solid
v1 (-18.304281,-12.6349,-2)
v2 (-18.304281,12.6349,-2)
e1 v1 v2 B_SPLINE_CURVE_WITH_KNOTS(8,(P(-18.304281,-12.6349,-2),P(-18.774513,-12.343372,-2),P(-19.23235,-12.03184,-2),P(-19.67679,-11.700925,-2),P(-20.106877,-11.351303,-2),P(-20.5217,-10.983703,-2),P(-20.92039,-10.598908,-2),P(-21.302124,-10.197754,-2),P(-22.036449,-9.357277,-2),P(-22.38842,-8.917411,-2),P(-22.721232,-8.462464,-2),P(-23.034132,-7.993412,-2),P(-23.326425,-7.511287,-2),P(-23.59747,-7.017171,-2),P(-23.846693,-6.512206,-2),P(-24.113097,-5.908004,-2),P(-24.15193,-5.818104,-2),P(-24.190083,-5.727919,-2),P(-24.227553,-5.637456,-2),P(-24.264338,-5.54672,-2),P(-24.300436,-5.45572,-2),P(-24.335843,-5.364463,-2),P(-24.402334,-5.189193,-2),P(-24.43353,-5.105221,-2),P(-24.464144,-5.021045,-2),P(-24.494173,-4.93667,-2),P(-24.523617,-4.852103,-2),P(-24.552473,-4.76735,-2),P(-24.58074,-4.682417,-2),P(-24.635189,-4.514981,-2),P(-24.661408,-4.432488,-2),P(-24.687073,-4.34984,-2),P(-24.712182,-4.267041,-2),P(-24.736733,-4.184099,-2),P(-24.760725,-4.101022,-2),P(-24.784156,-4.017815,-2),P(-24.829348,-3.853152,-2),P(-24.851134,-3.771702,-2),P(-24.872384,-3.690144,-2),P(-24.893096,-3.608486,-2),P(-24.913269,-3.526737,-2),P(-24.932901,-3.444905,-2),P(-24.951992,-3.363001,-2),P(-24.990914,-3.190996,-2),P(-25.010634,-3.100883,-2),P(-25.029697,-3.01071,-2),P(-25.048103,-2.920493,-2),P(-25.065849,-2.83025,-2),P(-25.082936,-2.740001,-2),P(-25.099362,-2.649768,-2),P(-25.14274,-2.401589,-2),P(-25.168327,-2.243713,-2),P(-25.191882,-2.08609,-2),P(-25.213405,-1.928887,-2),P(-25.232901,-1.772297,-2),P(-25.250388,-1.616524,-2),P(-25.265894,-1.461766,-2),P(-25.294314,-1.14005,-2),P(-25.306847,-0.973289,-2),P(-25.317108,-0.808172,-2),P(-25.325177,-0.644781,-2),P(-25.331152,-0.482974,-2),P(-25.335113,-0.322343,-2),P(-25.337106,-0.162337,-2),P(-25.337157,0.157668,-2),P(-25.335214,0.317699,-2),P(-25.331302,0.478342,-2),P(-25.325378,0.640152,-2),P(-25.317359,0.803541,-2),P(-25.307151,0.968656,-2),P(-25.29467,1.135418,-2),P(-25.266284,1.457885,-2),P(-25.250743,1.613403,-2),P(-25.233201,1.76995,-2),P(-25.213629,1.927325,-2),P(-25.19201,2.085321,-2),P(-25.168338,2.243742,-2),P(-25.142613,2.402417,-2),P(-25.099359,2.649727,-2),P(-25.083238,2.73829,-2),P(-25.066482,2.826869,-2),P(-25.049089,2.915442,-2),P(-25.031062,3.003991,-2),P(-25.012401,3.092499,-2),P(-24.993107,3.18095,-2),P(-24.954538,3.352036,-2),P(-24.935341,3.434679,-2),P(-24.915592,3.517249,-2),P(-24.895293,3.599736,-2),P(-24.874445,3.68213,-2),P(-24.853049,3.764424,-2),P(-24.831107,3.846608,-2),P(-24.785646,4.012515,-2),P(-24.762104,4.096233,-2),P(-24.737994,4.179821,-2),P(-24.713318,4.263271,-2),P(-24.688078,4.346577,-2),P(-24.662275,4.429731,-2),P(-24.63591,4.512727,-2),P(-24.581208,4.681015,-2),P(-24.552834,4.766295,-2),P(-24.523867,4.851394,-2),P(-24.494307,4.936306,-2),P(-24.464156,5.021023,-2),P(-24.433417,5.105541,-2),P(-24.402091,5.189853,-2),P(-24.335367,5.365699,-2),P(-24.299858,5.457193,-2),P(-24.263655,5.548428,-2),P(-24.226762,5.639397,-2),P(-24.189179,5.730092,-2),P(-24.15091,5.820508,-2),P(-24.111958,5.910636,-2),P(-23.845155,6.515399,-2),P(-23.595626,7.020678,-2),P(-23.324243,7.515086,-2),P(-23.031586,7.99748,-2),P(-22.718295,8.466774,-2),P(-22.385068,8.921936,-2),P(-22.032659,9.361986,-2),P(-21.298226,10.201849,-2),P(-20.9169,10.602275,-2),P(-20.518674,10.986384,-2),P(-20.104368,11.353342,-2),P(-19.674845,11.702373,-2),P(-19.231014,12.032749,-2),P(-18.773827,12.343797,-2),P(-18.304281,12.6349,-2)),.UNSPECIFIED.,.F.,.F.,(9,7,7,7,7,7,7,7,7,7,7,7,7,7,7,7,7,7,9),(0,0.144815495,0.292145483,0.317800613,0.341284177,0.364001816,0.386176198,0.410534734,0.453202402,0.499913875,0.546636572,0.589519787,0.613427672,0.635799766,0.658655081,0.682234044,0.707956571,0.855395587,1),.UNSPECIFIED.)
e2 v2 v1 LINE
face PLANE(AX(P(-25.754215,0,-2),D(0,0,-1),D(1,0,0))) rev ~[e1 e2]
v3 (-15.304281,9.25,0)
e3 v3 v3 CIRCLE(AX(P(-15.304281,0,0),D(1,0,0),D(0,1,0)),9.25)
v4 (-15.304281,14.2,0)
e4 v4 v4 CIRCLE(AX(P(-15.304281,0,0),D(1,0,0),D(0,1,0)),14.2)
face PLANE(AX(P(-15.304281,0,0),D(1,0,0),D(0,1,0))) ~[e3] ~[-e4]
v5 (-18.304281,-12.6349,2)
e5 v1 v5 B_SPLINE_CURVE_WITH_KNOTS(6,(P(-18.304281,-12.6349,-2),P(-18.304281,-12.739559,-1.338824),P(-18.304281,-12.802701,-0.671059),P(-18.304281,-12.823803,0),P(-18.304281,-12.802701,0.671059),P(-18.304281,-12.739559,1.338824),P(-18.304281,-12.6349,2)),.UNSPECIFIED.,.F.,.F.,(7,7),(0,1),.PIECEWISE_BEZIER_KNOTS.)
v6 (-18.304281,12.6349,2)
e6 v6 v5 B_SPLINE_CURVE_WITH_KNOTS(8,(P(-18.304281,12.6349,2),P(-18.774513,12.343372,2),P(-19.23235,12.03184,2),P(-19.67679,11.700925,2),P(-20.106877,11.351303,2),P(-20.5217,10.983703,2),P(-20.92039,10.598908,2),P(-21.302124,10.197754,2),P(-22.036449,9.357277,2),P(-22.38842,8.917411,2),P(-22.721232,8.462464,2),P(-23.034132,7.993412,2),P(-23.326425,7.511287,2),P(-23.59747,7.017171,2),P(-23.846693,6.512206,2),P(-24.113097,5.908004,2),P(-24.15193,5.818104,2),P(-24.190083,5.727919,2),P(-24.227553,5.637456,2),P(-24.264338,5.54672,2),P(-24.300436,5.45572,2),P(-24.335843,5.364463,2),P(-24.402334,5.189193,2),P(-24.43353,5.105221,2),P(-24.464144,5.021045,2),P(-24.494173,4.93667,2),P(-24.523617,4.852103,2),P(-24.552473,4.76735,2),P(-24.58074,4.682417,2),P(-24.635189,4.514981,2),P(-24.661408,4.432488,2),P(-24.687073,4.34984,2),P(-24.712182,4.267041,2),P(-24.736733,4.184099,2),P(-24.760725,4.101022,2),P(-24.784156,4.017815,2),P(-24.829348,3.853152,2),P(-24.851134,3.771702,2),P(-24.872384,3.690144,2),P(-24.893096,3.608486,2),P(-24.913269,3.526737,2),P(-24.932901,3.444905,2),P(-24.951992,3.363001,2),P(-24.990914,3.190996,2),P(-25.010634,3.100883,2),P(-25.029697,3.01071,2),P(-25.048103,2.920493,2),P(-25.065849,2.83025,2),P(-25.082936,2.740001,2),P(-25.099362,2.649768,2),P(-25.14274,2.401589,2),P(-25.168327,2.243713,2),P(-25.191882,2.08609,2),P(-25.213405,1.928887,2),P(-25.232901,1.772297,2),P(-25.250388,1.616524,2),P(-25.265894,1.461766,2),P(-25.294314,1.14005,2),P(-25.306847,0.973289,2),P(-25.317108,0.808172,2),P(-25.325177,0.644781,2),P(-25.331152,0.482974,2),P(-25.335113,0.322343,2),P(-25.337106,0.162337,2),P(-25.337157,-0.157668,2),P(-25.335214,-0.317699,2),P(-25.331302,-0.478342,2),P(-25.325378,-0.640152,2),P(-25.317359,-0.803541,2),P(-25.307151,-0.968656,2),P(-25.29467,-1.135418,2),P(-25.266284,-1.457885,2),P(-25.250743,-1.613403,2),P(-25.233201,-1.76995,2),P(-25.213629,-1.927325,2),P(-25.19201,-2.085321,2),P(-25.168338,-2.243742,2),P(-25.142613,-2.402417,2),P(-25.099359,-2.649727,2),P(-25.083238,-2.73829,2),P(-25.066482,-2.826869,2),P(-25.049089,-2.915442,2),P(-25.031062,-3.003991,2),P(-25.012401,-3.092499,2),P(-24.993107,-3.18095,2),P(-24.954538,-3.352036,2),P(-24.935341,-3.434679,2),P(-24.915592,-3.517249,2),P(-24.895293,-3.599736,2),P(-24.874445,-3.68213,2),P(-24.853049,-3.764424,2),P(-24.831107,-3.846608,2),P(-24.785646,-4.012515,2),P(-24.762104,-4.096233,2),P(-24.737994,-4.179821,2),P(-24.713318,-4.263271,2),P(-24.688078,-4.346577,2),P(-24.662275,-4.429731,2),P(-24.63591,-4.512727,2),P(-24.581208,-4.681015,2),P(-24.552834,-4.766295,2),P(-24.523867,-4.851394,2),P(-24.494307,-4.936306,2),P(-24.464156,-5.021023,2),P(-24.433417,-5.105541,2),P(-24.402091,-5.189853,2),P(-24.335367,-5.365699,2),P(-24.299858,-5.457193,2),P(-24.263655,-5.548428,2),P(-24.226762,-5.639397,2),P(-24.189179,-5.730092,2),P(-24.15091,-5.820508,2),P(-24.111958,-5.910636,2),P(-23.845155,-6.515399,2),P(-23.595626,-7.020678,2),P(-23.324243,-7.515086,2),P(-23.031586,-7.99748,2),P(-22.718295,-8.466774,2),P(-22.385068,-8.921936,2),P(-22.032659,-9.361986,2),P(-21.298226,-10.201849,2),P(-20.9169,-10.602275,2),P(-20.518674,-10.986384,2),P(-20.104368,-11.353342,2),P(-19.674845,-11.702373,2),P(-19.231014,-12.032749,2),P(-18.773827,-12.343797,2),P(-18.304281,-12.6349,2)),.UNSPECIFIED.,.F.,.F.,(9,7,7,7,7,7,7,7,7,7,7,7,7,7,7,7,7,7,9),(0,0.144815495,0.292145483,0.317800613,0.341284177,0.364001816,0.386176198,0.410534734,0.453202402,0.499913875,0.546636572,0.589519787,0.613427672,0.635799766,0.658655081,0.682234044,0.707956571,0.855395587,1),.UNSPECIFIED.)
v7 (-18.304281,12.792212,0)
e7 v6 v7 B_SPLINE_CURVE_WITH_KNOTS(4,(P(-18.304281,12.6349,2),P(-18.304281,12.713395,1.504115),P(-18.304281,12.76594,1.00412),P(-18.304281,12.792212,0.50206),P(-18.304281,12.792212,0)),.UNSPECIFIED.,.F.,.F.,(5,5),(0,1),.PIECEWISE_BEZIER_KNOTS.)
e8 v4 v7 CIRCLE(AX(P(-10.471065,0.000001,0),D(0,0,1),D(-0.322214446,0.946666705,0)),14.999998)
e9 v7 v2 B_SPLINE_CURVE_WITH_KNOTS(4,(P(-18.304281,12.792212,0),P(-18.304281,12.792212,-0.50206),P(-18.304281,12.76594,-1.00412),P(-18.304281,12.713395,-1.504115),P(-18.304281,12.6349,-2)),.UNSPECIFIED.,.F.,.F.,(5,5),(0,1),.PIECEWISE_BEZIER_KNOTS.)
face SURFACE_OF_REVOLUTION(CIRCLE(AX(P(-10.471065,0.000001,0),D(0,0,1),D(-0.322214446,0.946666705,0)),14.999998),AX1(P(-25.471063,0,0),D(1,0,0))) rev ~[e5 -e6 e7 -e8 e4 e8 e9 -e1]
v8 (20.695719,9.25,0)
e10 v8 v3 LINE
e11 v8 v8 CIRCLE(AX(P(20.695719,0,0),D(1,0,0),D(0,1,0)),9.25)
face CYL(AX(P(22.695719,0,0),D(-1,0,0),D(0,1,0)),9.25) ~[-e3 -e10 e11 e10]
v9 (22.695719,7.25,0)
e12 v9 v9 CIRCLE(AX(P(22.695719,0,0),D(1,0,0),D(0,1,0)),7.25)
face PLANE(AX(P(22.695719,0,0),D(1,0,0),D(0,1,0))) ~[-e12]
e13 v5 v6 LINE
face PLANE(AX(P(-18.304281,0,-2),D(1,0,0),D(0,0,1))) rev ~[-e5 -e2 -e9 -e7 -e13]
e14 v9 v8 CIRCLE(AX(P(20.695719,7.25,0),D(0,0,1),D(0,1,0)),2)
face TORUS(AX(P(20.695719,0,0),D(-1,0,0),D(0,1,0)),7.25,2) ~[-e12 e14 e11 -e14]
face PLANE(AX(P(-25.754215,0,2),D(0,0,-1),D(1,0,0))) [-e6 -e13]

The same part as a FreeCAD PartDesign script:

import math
import FreeCAD as App
import Part
import Sketcher
from FreeCAD import Vector


def edges_at(feature, points):
    """Names of the edges that pass closest to the given points."""
    edges = feature.Shape.Edges
    near = lambda p: min(range(len(edges)), key=lambda i: edges[i].distToShape(Part.Vertex(*p))[0])
    return sorted({f"Edge{near(p) + 1}" for p in points})

doc = App.newDocument("Part")
body = doc.addObject("PartDesign::Body", "Body")

sketch1 = body.newObject("Sketcher::SketchObject", "Sketch")
sketch1.AttachmentSupport = (doc.getObject("XY_Plane"), [""])
sketch1.MapMode = "FlatFace"
sketch1.addGeometry([
    Part.LineSegment(Vector(-25.5, 0, 0), Vector(22.7, 0, 0)),
    Part.LineSegment(Vector(22.7, 0, 0), Vector(22.7, 9.2, 0)),
    Part.LineSegment(Vector(22.7, 9.2, 0), Vector(-15.3, 9.2, 0)),
    Part.LineSegment(Vector(-15.3, 9.2, 0), Vector(-15.3, 14.2, 0)),
    Part.ArcOfCircle(Part.Circle(Vector(-10.5, 0, 0), Vector(0, 0, 1), 15), math.radians(109), math.radians(180)),
], False)
sketch1.addConstraint([
    Sketcher.Constraint("Coincident", 0, 2, 1, 1),
    Sketcher.Constraint("Coincident", 1, 2, 2, 1),
    Sketcher.Constraint("Coincident", 2, 2, 3, 1),
    Sketcher.Constraint("Coincident", 3, 2, 4, 1),
    Sketcher.Constraint("Coincident", 4, 2, 0, 1),
    Sketcher.Constraint("Horizontal", 0),
    Sketcher.Constraint("Vertical", 1),
    Sketcher.Constraint("Horizontal", 2),
    Sketcher.Constraint("Vertical", 3),
    Sketcher.Constraint("PointOnObject", 4, 3, -1),
    Sketcher.Constraint("PointOnObject", 0, 2, -1),
    Sketcher.Constraint("Radius", 4, 14.999998),
    Sketcher.Constraint("DistanceX", 2, 2, 2, 1, 38.0),
    Sketcher.Constraint("DistanceY", 1, 1, 1, 2, 9.25),
    Sketcher.Constraint("DistanceY", 3, 1, 3, 2, 4.95),
    Sketcher.Constraint("DistanceX", -1, 1, 0, 2, 22.695719),
])
revolution = body.newObject("PartDesign::Revolution", "Revolution")
revolution.Profile = sketch1
revolution.ReferenceAxis = (sketch1, ["H_Axis"])
revolution.Angle = 360

sketch2 = body.newObject("Sketcher::SketchObject", "Sketch001")
sketch2.AttachmentSupport = (doc.getObject("XZ_Plane"), [""])
sketch2.MapMode = "FlatFace"
sketch2.addGeometry([
    Part.LineSegment(Vector(-25.8, 2, 0), Vector(-25.8, -2, 0)),
    Part.LineSegment(Vector(-25.8, -2, 0), Vector(-18.3, -2, 0)),
    Part.LineSegment(Vector(-18.3, -2, 0), Vector(-18.3, 2, 0)),
    Part.LineSegment(Vector(-18.3, 2, 0), Vector(-25.8, 2, 0)),
], False)
sketch2.addConstraint([
    Sketcher.Constraint("Coincident", 0, 2, 1, 1),
    Sketcher.Constraint("Coincident", 1, 2, 2, 1),
    Sketcher.Constraint("Coincident", 2, 2, 3, 1),
    Sketcher.Constraint("Coincident", 3, 2, 0, 1),
    Sketcher.Constraint("Vertical", 0),
    Sketcher.Constraint("Horizontal", 1),
    Sketcher.Constraint("Vertical", 2),
    Sketcher.Constraint("Horizontal", 3),
    Sketcher.Constraint("DistanceY", 0, 2, 0, 1, 4.0),
    Sketcher.Constraint("DistanceY", 0, 2, -1, 1, 2.0),
    Sketcher.Constraint("DistanceX", 1, 1, 1, 2, 7.449934),
    Sketcher.Constraint("DistanceX", 1, 2, -1, 1, 18.304281),
])
pocket1 = body.newObject("PartDesign::Pocket", "Pocket")
pocket1.Profile = sketch2
pocket1.Length = 35.466486
pocket1.Midplane = True
doc.recompute()

fillet = body.newObject("PartDesign::Fillet", "Fillet")
fillet.Base = (pocket1, edges_at(pocket1, [(22.696, -9.25, 0)]))
fillet.Radius = 2

doc.recompute()
